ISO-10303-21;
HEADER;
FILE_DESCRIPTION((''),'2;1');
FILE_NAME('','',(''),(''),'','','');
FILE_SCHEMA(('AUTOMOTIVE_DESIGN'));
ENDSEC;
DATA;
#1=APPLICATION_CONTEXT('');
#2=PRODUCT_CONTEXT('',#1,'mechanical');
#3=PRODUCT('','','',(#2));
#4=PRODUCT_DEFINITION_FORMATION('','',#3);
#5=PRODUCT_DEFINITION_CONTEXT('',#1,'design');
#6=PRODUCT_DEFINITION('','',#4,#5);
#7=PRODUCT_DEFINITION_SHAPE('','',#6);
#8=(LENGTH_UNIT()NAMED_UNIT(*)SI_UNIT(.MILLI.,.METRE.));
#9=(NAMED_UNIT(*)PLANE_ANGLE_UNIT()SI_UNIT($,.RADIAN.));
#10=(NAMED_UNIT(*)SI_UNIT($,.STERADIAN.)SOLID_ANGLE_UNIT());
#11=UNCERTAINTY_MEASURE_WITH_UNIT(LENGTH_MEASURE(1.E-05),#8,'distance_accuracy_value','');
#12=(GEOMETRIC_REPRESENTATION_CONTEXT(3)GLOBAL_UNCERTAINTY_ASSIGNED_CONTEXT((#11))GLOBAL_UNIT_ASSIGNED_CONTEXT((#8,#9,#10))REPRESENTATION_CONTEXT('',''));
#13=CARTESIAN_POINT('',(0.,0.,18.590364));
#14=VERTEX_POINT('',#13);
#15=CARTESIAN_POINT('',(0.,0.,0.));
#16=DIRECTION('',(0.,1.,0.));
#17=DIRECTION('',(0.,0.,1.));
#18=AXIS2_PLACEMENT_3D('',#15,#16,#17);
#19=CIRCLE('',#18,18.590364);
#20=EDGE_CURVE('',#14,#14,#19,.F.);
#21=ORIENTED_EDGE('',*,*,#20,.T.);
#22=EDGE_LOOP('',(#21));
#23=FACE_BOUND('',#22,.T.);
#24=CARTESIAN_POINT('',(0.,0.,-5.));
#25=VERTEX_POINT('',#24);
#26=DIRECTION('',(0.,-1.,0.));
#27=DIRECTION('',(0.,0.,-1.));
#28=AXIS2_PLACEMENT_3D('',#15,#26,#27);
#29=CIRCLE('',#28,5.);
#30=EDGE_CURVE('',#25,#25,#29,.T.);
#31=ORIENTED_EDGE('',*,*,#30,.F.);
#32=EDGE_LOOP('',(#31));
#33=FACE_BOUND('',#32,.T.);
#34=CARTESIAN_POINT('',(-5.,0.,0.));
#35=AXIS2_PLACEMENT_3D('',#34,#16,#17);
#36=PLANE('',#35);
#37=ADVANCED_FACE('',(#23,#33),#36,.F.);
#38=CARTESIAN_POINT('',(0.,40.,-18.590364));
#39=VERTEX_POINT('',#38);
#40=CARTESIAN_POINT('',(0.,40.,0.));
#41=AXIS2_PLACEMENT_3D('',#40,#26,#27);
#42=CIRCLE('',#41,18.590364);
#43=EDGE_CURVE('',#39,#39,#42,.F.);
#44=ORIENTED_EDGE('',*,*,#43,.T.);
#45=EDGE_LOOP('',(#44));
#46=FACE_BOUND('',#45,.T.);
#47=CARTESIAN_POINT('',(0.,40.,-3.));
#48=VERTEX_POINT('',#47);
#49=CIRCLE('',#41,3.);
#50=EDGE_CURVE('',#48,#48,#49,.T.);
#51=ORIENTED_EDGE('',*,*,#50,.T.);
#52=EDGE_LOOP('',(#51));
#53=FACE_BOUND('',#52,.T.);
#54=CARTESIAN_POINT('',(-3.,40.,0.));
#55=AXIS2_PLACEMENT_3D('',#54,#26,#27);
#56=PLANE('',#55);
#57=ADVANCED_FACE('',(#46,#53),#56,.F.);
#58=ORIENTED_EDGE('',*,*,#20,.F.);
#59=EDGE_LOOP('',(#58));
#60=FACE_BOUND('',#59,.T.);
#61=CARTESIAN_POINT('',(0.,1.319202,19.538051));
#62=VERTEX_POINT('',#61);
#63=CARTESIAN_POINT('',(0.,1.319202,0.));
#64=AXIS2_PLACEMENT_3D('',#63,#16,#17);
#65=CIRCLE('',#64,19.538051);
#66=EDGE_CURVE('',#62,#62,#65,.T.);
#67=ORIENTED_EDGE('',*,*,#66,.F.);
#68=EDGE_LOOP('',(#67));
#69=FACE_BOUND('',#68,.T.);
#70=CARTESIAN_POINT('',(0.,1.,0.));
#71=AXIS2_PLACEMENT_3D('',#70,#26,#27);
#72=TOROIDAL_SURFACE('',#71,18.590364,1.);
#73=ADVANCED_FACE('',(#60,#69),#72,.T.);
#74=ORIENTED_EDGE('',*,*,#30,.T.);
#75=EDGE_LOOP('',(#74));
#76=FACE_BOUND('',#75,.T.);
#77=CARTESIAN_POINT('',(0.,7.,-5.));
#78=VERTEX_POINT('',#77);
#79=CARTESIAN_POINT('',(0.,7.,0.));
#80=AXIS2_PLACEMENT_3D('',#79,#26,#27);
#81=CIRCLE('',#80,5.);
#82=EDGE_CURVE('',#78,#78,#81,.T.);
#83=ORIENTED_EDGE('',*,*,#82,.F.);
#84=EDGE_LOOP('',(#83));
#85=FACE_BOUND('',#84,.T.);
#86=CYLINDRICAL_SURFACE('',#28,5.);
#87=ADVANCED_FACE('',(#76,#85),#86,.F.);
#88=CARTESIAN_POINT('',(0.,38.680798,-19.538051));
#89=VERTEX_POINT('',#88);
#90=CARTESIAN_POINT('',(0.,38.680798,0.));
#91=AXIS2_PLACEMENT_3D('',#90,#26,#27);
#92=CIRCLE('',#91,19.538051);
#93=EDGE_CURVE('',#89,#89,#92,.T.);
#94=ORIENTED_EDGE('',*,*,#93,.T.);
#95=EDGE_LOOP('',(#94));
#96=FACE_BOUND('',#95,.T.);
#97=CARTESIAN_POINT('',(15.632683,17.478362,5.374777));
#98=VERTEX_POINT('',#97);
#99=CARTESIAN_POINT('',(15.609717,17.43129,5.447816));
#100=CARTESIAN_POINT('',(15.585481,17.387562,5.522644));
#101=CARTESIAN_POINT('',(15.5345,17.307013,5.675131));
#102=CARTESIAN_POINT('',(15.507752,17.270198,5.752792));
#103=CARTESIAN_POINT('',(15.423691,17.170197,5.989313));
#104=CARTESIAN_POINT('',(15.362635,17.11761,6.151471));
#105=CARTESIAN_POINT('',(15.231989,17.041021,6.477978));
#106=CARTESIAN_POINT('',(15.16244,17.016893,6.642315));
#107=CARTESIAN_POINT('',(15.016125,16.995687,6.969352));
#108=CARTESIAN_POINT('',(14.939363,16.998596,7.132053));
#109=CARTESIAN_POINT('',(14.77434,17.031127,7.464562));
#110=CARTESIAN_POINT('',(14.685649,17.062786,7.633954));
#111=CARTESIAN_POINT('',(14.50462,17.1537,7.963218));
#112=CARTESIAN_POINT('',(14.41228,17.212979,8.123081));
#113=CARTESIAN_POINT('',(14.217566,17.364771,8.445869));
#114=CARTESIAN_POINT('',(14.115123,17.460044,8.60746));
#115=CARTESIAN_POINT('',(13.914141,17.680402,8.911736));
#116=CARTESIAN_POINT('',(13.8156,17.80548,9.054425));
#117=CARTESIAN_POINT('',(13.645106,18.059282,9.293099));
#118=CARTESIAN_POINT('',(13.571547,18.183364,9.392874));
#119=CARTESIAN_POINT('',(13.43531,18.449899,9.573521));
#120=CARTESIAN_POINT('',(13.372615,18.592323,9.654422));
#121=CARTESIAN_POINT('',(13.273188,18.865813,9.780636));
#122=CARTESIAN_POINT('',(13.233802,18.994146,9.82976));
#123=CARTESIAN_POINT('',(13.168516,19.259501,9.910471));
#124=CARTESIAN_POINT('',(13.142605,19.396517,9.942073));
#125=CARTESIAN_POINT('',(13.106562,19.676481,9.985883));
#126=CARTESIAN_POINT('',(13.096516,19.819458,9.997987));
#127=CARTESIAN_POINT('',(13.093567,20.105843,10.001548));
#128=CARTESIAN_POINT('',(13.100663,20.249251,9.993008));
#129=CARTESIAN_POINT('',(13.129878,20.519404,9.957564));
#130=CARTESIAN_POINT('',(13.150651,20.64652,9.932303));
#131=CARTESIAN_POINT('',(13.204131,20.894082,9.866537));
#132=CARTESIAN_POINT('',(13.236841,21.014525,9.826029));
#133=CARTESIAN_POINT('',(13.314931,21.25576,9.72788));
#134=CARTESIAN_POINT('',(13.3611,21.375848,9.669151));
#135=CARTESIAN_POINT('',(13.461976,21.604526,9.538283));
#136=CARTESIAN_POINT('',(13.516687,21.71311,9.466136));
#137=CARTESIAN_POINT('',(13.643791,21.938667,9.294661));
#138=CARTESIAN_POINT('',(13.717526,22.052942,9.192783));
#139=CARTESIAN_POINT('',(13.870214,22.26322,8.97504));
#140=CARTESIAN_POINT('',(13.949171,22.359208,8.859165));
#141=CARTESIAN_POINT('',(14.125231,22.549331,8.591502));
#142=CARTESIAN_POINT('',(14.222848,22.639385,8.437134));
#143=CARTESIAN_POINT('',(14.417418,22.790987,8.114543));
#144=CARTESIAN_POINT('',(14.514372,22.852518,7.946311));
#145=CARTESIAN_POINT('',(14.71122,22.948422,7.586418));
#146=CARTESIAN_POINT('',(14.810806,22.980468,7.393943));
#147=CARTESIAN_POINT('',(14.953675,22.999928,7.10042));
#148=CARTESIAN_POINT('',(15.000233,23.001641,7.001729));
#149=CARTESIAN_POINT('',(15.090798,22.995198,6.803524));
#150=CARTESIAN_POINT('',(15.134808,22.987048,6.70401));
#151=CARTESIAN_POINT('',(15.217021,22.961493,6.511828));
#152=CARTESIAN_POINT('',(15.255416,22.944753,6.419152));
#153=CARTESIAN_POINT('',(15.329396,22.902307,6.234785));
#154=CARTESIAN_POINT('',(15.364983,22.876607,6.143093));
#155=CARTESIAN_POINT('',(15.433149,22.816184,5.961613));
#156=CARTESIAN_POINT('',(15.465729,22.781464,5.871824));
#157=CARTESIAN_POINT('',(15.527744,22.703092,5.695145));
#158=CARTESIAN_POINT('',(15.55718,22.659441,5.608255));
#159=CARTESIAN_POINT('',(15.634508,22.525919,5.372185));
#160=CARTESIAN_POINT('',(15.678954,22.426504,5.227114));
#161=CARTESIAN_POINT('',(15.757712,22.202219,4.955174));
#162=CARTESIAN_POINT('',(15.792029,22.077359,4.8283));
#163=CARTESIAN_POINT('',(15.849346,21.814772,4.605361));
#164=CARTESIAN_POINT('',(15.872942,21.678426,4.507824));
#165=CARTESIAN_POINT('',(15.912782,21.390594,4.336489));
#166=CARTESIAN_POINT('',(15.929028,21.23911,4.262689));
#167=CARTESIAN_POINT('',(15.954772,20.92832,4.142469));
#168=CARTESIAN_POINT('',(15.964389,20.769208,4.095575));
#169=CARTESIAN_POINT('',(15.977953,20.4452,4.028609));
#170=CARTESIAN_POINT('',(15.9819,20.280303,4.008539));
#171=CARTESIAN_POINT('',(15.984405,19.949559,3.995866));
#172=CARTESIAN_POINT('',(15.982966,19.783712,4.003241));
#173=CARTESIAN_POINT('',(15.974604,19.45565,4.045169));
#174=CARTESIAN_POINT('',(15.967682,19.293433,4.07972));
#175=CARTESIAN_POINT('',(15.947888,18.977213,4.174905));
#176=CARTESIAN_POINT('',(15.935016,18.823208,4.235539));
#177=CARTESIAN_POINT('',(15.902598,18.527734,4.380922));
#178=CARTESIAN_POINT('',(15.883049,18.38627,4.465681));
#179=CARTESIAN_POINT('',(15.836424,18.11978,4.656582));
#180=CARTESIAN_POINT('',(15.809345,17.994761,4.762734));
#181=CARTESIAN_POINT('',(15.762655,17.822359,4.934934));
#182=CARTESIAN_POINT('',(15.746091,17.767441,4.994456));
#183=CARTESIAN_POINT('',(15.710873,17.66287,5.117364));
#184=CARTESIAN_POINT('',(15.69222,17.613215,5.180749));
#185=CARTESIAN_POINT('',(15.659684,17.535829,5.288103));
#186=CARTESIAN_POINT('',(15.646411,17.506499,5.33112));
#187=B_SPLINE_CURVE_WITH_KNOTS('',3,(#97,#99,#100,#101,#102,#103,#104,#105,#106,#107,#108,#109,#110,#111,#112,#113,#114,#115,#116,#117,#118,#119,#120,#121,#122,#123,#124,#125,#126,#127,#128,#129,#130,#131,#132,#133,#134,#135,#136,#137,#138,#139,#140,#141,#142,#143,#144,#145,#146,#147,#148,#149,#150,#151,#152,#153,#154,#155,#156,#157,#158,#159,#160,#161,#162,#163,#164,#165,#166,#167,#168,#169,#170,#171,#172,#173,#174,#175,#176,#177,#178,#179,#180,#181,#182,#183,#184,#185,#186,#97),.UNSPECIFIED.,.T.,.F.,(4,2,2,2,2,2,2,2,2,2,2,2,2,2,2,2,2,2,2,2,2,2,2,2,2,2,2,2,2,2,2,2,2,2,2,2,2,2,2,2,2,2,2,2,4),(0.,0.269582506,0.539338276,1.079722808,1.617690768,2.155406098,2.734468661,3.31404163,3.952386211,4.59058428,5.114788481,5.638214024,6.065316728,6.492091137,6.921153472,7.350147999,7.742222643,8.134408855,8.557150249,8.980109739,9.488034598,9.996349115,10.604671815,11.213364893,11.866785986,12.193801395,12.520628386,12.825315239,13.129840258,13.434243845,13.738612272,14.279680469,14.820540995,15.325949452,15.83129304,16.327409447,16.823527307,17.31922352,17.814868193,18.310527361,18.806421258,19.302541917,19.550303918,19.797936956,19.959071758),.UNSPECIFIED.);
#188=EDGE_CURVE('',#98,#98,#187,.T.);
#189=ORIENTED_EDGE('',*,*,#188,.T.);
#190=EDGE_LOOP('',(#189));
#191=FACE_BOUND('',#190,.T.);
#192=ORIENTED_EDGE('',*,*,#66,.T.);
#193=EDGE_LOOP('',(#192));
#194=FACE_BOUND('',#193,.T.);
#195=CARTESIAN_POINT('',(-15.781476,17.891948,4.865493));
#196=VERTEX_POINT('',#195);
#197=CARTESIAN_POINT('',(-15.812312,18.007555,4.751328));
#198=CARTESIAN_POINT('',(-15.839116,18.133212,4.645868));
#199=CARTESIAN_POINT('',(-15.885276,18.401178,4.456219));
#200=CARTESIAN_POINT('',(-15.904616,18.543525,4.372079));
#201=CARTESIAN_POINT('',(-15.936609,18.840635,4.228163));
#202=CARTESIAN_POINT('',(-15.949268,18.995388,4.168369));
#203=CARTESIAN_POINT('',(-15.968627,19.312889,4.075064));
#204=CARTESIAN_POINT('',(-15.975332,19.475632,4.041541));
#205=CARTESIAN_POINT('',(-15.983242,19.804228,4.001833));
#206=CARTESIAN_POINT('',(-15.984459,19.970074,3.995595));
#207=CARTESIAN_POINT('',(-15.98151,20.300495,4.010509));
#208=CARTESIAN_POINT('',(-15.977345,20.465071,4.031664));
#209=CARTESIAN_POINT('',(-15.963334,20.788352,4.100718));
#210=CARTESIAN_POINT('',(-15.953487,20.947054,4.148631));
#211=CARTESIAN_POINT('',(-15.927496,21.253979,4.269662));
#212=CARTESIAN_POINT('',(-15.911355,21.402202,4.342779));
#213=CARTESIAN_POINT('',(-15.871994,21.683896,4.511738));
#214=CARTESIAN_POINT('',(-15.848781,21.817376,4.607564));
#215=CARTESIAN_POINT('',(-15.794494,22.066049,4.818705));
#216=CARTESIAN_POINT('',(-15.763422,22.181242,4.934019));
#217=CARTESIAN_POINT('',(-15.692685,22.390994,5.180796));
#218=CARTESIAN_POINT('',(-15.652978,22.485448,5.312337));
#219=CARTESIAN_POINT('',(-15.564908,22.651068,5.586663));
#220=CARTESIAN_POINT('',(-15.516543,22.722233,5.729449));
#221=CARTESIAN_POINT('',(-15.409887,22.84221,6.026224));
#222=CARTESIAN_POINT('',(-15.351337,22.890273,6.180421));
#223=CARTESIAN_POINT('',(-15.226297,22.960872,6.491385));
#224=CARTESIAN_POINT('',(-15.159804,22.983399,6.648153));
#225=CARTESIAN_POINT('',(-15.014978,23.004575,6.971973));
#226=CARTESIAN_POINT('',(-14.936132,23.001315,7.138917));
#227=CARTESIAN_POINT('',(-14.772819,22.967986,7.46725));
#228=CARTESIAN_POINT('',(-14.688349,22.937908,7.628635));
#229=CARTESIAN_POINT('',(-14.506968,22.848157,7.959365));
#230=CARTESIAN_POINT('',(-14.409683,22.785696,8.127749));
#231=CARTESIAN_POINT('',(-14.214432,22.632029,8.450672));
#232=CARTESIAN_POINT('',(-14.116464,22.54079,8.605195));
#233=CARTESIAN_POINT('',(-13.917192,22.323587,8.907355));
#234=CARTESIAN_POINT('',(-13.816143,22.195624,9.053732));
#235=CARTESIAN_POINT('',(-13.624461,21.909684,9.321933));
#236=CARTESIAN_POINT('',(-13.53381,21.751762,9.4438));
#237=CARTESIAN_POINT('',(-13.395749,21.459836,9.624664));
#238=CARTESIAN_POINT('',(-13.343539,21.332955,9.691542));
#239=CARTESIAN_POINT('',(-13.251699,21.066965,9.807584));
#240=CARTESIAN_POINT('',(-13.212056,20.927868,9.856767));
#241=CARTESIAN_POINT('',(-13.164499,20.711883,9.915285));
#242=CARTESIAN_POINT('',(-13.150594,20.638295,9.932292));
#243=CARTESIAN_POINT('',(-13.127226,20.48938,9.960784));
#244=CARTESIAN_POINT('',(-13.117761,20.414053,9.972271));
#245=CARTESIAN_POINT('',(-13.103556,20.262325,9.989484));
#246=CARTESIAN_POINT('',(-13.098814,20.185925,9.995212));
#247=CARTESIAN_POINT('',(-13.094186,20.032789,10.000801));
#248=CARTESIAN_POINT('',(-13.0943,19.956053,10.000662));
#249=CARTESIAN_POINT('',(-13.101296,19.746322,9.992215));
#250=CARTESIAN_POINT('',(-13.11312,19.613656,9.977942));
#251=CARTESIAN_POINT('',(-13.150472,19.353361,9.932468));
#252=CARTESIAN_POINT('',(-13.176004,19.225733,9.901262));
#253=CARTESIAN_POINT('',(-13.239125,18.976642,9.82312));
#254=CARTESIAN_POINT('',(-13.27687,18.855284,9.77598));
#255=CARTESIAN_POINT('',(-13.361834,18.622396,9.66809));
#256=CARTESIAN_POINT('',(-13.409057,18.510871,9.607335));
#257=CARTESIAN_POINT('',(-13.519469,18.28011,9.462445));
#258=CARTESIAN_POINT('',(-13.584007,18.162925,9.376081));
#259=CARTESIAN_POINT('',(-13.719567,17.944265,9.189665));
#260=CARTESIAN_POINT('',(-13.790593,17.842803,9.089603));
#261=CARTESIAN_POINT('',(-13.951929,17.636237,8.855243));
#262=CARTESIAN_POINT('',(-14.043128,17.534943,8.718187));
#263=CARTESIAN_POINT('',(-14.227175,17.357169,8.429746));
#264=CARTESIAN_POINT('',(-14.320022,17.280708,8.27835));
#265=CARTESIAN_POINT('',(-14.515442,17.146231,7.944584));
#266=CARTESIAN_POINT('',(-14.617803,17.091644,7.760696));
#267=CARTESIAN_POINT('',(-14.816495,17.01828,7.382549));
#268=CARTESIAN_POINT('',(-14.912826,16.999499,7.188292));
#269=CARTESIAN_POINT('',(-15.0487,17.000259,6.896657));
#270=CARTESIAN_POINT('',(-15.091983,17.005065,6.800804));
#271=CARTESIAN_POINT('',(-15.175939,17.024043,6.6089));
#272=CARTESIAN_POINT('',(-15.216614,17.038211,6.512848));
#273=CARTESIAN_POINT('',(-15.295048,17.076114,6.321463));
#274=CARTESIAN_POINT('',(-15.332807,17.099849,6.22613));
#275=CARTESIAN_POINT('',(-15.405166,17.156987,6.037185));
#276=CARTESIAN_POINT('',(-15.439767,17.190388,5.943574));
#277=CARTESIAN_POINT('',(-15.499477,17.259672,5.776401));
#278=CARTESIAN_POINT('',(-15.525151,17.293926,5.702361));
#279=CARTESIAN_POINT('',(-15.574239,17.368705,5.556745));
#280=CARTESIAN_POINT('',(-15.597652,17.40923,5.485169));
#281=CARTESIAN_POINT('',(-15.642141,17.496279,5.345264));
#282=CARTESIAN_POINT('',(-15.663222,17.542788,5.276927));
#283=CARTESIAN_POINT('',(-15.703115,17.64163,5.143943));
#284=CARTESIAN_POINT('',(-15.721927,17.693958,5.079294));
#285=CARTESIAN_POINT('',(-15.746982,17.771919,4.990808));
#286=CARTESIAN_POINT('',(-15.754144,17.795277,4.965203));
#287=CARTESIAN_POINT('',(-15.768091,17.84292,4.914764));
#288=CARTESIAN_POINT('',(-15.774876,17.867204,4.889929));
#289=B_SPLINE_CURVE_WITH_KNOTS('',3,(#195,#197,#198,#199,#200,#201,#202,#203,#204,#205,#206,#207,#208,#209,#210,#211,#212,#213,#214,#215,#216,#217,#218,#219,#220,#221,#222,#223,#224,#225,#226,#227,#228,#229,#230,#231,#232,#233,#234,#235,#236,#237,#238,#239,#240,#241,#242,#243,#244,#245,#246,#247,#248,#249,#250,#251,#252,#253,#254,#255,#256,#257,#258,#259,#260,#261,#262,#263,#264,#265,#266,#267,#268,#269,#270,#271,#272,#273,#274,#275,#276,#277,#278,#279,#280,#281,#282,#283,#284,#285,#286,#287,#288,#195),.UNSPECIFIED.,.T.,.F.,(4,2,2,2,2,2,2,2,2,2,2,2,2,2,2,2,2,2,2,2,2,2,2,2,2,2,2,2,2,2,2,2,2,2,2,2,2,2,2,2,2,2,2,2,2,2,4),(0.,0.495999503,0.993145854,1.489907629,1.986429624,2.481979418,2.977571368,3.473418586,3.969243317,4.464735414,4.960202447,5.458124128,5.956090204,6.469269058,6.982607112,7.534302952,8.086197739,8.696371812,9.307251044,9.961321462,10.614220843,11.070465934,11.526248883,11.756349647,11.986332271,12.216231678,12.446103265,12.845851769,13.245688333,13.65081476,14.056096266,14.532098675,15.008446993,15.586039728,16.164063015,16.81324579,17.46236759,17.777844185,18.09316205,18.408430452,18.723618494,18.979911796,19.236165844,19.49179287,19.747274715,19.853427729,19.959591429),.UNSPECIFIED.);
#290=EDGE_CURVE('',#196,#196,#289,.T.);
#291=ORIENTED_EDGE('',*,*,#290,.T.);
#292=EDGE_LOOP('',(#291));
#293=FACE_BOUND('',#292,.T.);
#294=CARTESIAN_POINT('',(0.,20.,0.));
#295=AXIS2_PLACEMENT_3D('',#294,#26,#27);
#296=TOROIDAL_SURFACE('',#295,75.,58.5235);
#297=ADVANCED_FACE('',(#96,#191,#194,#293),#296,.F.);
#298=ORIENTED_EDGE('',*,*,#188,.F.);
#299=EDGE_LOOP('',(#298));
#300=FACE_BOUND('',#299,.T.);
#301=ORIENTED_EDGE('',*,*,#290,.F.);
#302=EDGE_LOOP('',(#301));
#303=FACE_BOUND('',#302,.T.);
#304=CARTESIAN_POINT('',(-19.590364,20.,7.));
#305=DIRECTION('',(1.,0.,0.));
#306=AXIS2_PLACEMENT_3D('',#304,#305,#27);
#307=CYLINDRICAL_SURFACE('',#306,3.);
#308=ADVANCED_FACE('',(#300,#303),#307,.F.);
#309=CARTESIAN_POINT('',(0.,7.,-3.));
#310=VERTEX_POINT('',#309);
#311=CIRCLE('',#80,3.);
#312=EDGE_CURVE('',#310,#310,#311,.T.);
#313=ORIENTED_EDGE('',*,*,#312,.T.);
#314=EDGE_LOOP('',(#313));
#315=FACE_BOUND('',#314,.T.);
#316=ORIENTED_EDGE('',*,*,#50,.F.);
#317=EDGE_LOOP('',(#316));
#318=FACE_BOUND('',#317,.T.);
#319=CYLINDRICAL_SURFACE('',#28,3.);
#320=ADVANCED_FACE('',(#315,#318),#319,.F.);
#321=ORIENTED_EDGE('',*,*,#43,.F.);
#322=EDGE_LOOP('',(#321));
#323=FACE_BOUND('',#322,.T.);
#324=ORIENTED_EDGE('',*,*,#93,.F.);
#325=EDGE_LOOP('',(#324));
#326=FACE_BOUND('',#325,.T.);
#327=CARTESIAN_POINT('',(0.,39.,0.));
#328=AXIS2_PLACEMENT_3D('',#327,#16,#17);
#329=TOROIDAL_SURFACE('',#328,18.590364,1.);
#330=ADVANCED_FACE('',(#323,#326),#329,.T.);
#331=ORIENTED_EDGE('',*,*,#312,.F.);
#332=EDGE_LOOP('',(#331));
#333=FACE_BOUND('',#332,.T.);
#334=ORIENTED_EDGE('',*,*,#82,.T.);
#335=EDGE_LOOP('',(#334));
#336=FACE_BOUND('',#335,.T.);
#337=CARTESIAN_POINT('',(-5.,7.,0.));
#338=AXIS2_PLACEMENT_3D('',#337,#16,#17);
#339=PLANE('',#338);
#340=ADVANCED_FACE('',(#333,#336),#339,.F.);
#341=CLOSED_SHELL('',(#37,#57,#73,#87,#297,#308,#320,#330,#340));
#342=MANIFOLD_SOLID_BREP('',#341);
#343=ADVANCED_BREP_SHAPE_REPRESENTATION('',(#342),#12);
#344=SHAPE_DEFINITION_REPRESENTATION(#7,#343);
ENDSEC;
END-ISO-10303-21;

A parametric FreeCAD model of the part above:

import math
import FreeCAD as App
import Part
import Sketcher
Q = App.Units.Quantity


def edges_at(feature, points):
    """Names of the edges that pass closest to the given points."""
    edges = feature.Shape.Edges
    near = lambda p: min(range(len(edges)), key=lambda i: edges[i].distToShape(Part.Vertex(*p))[0])
    return sorted({f"Edge{near(p) + 1}" for p in points})

doc = App.newDocument("Part")
params = doc.addObject("Spreadsheet::Sheet", "Params")
for row, (alias, value) in enumerate([
    ("sketch1_width", "17 mm"),
    ("sketch1_width2", "15 mm"),
    ("sketch1_height", "7 mm"),
    ("sketch1_height2", "33 mm"),
    ("revolution_angle", "360 deg"),
    ("fillet_radius", "1 mm"),
    ("sketch2_diameter", "6 mm"),
], start=1):
    params.set(f"A{row}", alias)
    params.set(f"B{row}", "=" + value)
    params.setAlias(f"B{row}", alias)

body = doc.addObject("PartDesign::Body", "Body")

sketch1 = body.newObject("Sketcher::SketchObject", "Sketch")
sketch1.AttachmentSupport = (doc.getObject("XY_Plane"), [""])
sketch1.MapMode = "FlatFace"
sketch1.addGeometry([
    Part.LineSegment(App.Vector(-3, 40, 0), App.Vector(-20, 40, 0)),
    Part.ArcOfCircle(Part.Circle(App.Vector(-75, 20, 0), App.Vector(0, 0, 1), 58.5235), math.radians(-19.983107), math.radians(19.983107)),
    Part.LineSegment(App.Vector(-20, 0, 0), App.Vector(-5, 0, 0)),
    Part.LineSegment(App.Vector(-5, 0, 0), App.Vector(-5, 7, 0)),
    Part.LineSegment(App.Vector(-5, 7, 0), App.Vector(-3, 7, 0)),
    Part.LineSegment(App.Vector(-3, 7, 0), App.Vector(-3, 40, 0)),
], False)
sketch1.addConstraint([
    Sketcher.Constraint("Coincident", 0, 2, 1, 2),
    Sketcher.Constraint("Coincident", 1, 1, 2, 1),
    Sketcher.Constraint("Coincident", 2, 2, 3, 1),
    Sketcher.Constraint("Coincident", 3, 2, 4, 1),
    Sketcher.Constraint("Coincident", 4, 2, 5, 1),
    Sketcher.Constraint("Coincident", 5, 2, 0, 1),
    Sketcher.Constraint("Horizontal", 0),
    Sketcher.Constraint("Horizontal", 2),
    Sketcher.Constraint("Vertical", 3),
    Sketcher.Constraint("Horizontal", 4),
    Sketcher.Constraint("Vertical", 5),
    Sketcher.Constraint("PointOnObject", 1, 1, -1),
    Sketcher.Constraint("Vertical", 0, 2, 1, 1),
    Sketcher.Constraint("DistanceX", 0, 2, 0, 1, Q("17 mm")),
    Sketcher.Constraint("DistanceX", 2, 1, 2, 2, Q("15 mm")),
    Sketcher.Constraint("DistanceY", 3, 1, 3, 2, Q("7 mm")),
    Sketcher.Constraint("DistanceY", 5, 1, 5, 2, Q("33 mm")),
    Sketcher.Constraint("DistanceX", 1, 3, -1, 1, Q("75 mm")),
    Sketcher.Constraint("DistanceX", 0, 2, -1, 1, Q("20 mm")),
])
sketch1.setExpression("Constraints[13]", "Params.sketch1_width")
sketch1.setExpression("Constraints[14]", "Params.sketch1_width2")
sketch1.setExpression("Constraints[15]", "Params.sketch1_height")
sketch1.setExpression("Constraints[16]", "Params.sketch1_height2")
revolution = body.newObject("PartDesign::Revolution", "Revolution")
revolution.Profile = sketch1
revolution.ReferenceAxis = (sketch1, ["V_Axis"])
revolution.setExpression("Angle", "Params.revolution_angle")
doc.recompute()

fillet = body.newObject("PartDesign::Fillet", "Fillet")
fillet.Base = (revolution, edges_at(revolution, [(20, 40, 0), (20, 0, 0)]))
fillet.setExpression("Radius", "Params.fillet_radius")

sketch2 = body.newObject("Sketcher::SketchObject", "Sketch001")
sketch2.AttachmentSupport = (doc.getObject("YZ_Plane"), [""])
sketch2.MapMode = "FlatFace"
sketch2.addGeometry(Part.Circle(App.Vector(20, 7, 0), App.Vector(0, 0, 1), 3), False)
sketch2.addConstraint([
    Sketcher.Constraint("Diameter", 0, Q("6 mm")),
    Sketcher.Constraint("DistanceX", -1, 1, 0, 3, Q("20 mm")),
    Sketcher.Constraint("DistanceY", -1, 1, 0, 3, Q("7 mm")),
])
sketch2.setExpression("Constraints[0]", "Params.sketch2_diameter")
pocket1 = body.newObject("PartDesign::Pocket", "Pocket")
pocket1.Profile = sketch2
pocket1.Type = "ThroughAll"
pocket1.Midplane = True

doc.recompute()
